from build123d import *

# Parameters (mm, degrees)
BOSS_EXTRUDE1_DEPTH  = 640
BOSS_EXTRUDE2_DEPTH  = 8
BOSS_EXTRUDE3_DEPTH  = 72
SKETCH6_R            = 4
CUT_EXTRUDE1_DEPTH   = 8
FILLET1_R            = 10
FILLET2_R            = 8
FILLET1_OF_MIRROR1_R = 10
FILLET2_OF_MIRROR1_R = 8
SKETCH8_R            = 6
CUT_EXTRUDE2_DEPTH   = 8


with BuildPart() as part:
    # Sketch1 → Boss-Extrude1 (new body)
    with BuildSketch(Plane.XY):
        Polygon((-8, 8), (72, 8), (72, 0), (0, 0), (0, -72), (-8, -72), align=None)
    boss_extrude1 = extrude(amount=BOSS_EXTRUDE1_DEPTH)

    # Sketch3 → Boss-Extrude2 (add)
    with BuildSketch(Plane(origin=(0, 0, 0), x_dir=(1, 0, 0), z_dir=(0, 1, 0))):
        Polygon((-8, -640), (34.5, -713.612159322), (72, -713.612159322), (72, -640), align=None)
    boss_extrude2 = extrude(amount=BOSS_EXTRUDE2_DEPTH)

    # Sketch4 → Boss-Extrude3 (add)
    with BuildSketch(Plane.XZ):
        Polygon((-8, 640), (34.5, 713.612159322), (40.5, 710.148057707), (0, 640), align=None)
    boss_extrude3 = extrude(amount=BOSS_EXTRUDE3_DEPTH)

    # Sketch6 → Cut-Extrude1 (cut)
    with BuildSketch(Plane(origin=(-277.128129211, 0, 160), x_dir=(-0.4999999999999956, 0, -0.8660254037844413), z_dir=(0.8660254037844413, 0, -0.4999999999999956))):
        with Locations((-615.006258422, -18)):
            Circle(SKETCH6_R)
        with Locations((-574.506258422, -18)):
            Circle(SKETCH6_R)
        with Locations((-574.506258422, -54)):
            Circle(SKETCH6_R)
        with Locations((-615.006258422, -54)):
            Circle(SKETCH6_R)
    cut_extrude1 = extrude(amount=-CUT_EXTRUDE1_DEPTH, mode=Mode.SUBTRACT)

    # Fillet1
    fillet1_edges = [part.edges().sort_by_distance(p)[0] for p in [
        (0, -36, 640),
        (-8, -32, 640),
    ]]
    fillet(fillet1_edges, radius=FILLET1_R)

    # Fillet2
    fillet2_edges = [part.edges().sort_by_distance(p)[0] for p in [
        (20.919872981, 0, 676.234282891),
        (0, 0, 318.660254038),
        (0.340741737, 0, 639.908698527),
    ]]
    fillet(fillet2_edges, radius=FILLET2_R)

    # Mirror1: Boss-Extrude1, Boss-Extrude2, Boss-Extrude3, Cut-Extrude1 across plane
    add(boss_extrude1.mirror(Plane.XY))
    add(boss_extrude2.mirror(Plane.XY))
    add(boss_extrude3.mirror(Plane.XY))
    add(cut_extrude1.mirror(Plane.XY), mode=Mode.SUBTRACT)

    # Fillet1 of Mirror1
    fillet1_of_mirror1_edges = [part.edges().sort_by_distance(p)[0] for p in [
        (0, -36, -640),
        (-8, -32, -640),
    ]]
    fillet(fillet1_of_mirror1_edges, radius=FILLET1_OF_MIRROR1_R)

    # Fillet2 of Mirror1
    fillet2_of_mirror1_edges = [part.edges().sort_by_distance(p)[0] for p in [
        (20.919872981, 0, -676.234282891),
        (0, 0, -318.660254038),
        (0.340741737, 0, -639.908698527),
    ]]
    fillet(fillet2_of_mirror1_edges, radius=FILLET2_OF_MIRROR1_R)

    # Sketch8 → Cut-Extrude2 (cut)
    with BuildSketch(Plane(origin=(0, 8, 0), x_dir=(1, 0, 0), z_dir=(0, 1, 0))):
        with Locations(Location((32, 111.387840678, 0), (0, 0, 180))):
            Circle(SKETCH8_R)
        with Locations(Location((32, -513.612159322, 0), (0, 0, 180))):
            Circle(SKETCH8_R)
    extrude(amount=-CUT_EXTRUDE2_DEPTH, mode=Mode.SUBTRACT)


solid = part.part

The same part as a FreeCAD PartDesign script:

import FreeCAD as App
import Part
import Sketcher
Q = App.Units.Quantity


def edges_at(feature, points):
    """Names of the edges that pass closest to the given points."""
    edges = feature.Shape.Edges
    near = lambda p: min(range(len(edges)), key=lambda i: edges[i].distToShape(Part.Vertex(*p))[0])
    return sorted({f"Edge{near(p) + 1}" for p in points})

doc = App.newDocument("Part")
body = doc.addObject("PartDesign::Body", "Body")

# Sketch on XY plane
sketch1 = body.newObject("Sketcher::SketchObject", "Sketch")
sketch1.AttachmentSupport = (doc.getObject("XY_Plane"), [""])
sketch1.MapMode = "FlatFace"
sketch1.addGeometry([
    Part.LineSegment(App.Vector(72, 8, 0), App.Vector(-8, 8, 0)),  # 0
    Part.LineSegment(App.Vector(-8, 8, 0), App.Vector(-8, -72, 0)),  # 1
    Part.LineSegment(App.Vector(-8, -72, 0), App.Vector(0, -72, 0)),  # 2
    Part.LineSegment(App.Vector(0, -72, 0), App.Vector(0, 0, 0)),  # 3
    Part.LineSegment(App.Vector(0, 0, 0), App.Vector(72, 0, 0)),  # 4
    Part.LineSegment(App.Vector(72, 0, 0), App.Vector(72, 8, 0)),  # 5
], False)
sketch1.addConstraint([
    Sketcher.Constraint("Coincident", 0, 2, 1, 1),
    Sketcher.Constraint("Coincident", 1, 2, 2, 1),
    Sketcher.Constraint("Coincident", 2, 2, 3, 1),
    Sketcher.Constraint("Coincident", 3, 2, 4, 1),
    Sketcher.Constraint("Coincident", 4, 2, 5, 1),
    Sketcher.Constraint("Coincident", 5, 2, 0, 1),
    Sketcher.Constraint("Horizontal", 0),
    Sketcher.Constraint("Vertical", 1),
    Sketcher.Constraint("Horizontal", 2),
    Sketcher.Constraint("Vertical", 3),
    Sketcher.Constraint("Horizontal", 4),
    Sketcher.Constraint("Vertical", 5),
    Sketcher.Constraint("Coincident", 3, 2, -1, 1),
    Sketcher.Constraint("Equal", 0, 1),
    Sketcher.Constraint("Equal", 4, 3),
    Sketcher.Constraint("DistanceX", 0, 2, 0, 1, Q("80 mm")),
    Sketcher.Constraint("DistanceX", 2, 1, 2, 2, Q("8 mm")),
])
pad1 = body.newObject("PartDesign::Pad", "Pad")
pad1.Profile = sketch1
pad1.Length = 640

# Sketch on XZ plane
sketch2 = body.newObject("Sketcher::SketchObject", "Sketch001")
sketch2.AttachmentSupport = (doc.getObject("XZ_Plane"), [""])
sketch2.MapMode = "FlatFace"
sketch2.addGeometry([
    Part.LineSegment(App.Vector(-8, 640, 0), App.Vector(34, 714, 0)),
    Part.LineSegment(App.Vector(34, 714, 0), App.Vector(72, 714, 0)),
    Part.LineSegment(App.Vector(72, 714, 0), App.Vector(72, 640, 0)),
    Part.LineSegment(App.Vector(72, 640, 0), App.Vector(-8, 640, 0)),
], False)
sketch2.addConstraint([
    Sketcher.Constraint("Coincident", 0, 2, 1, 1),
    Sketcher.Constraint("Coincident", 1, 2, 2, 1),
    Sketcher.Constraint("Coincident", 2, 2, 3, 1),
    Sketcher.Constraint("Coincident", 3, 2, 0, 1),
    Sketcher.Constraint("Horizontal", 1),
    Sketcher.Constraint("Vertical", 2),
    Sketcher.Constraint("Horizontal", 3),
    Sketcher.Constraint("DistanceX", 3, 2, 3, 1, Q("80 mm")),
    Sketcher.Constraint("Angle", 0, Q("60 deg")),
    Sketcher.Constraint("Distance", 0, Q("85 mm")),
    Sketcher.Constraint("DistanceX", -1, 1, 1, 2, Q("72 mm")),
    Sketcher.Constraint("DistanceY", -1, 1, 2, 2, Q("640 mm")),
])
pad2 = body.newObject("PartDesign::Pad", "Pad001")
pad2.Profile = sketch2
pad2.Length = 8
pad2.Reversed = True

# Sketch on XZ plane
sketch3 = body.newObject("Sketcher::SketchObject", "Sketch002")
sketch3.AttachmentSupport = (doc.getObject("XZ_Plane"), [""])
sketch3.MapMode = "FlatFace"
sketch3.addGeometry([
    Part.LineSegment(App.Vector(34, 714, 0), App.Vector(-8, 640, 0)),
    Part.LineSegment(App.Vector(-8, 640, 0), App.Vector(0, 640, 0)),
    Part.LineSegment(App.Vector(0, 640, 0), App.Vector(40, 710, 0)),
    Part.LineSegment(App.Vector(40, 710, 0), App.Vector(34, 714, 0)),
], False)
sketch3.addConstraint([
    Sketcher.Constraint("Coincident", 0, 2, 1, 1),
    Sketcher.Constraint("Coincident", 1, 2, 2, 1),
    Sketcher.Constraint("Coincident", 2, 2, 3, 1),
    Sketcher.Constraint("Coincident", 3, 2, 0, 1),
    Sketcher.Constraint("Horizontal", 1),
    Sketcher.Constraint("PointOnObject", 1, 2, -2),
    Sketcher.Constraint("Parallel", 0, 2),
    Sketcher.Constraint("Perpendicular", 2, 3),
    Sketcher.Constraint("DistanceX", 1, 1, 1, 2, Q("8 mm")),
    Sketcher.Constraint("Angle", 0, Q("-120 deg")),
    Sketcher.Constraint("Distance", 0, Q("85 mm")),
    Sketcher.Constraint("DistanceY", -1, 1, 0, 2, Q("640 mm")),
])
pad3 = body.newObject("PartDesign::Pad", "Pad002")
pad3.Profile = sketch3
pad3.Length = 72

# Sketch on an angled plane
sketch4 = body.newObject("Sketcher::SketchObject", "Sketch003")
sketch4.Placement = App.Placement(App.Vector(-277.128129, 0, 160), App.Rotation(App.Vector(-0.5, 0, -0.866025404), App.Vector(0, 1, 0), App.Vector(0.866025404, 0, -0.5), "ZXY"))
sketch4.addGeometry([
    Part.Circle(App.Vector(-615, -18, 0), App.Vector(0, 0, 1), 4),
    Part.Circle(App.Vector(-574.5, -18, 0), App.Vector(0, 0, 1), 4),
    Part.Circle(App.Vector(-574.5, -54, 0), App.Vector(0, 0, 1), 4),
    Part.Circle(App.Vector(-615, -54, 0), App.Vector(0, 0, 1), 4),
], False)
sketch4.addConstraint([
    Sketcher.Constraint("Equal", 0, 1),
    Sketcher.Constraint("Equal", 1, 2),
    Sketcher.Constraint("Equal", 2, 3),
    Sketcher.Constraint("Horizontal", 0, 3, 1, 3),
    Sketcher.Constraint("Horizontal", 2, 3, 3, 3),
    Sketcher.Constraint("Vertical", 1, 3, 2, 3),
    Sketcher.Constraint("Vertical", 0, 3, 3, 3),
    Sketcher.Constraint("Diameter", 0, Q("8 mm")),
    Sketcher.Constraint("DistanceY", 0, 3, -1, 1, Q("18 mm")),
    Sketcher.Constraint("DistanceY", 2, 3, -1, 1, Q("54 mm")),
    Sketcher.Constraint("DistanceX", 0, 3, 1, 3, Q("40.5 mm")),
    Sketcher.Constraint("DistanceX", 0, 3, -1, 1, Q("615.006259 mm")),
])
pocket1 = body.newObject("PartDesign::Pocket", "Pocket")
pocket1.Profile = sketch4
pocket1.Length = 8
doc.recompute()

fillet = body.newObject("PartDesign::Fillet", "Fillet")
fillet.Base = (pocket1, edges_at(pocket1, [(0, -36, 640), (-8, -32, 640)]))
fillet.Radius = 10
doc.recompute()

fillet2 = body.newObject("PartDesign::Fillet", "Fillet001")
fillet2.Base = (fillet, edges_at(fillet, [(20.92, 0, 676.234), (0, 0, 318.66), (0.341, 0, 639.909)]))
fillet2.Radius = 8
doc.recompute()

mirrored = body.newObject("PartDesign::Mirrored", "Mirrored")
mirrored.Originals = [pad1, pad2, pad3, pocket1]
mirrored.MirrorPlane = (doc.getObject("XY_Plane"), [""])
body.Tip = mirrored
doc.recompute()

fillet3 = body.newObject("PartDesign::Fillet", "Fillet002")
fillet3.Base = (mirrored, edges_at(mirrored, [(0, -36, -640), (-8, -32, -640)]))
fillet3.Radius = 10
doc.recompute()

fillet4 = body.newObject("PartDesign::Fillet", "Fillet003")
fillet4.Base = (fillet3, edges_at(fillet3, [(20.92, 0, -676.234), (0, 0, -318.66), (0.341, 0, -639.909)]))
fillet4.Radius = 8

# Sketch on XZ plane
sketch5 = body.newObject("Sketcher::SketchObject", "Sketch004")
sketch5.AttachmentSupport = (doc.getObject("XZ_Plane"), [""])
sketch5.MapMode = "FlatFace"
sketch5.AttachmentOffset = App.Placement(App.Vector(0, 0, -8), App.Rotation())
sketch5.addGeometry([
    Part.Circle(App.Vector(32, -111, 0), App.Vector(0, 0, 1), 6),
    Part.Circle(App.Vector(32, 514, 0), App.Vector(0, 0, 1), 6),
], False)
sketch5.addConstraint([
    Sketcher.Constraint("Equal", 0, 1),
    Sketcher.Constraint("Vertical", 0, 3, 1, 3),
    Sketcher.Constraint("Diameter", 0, Q("12 mm")),
    Sketcher.Constraint("DistanceX", -1, 1, 0, 3, Q("32 mm")),
    Sketcher.Constraint("DistanceY", 0, 3, 1, 3, Q("625 mm")),
    Sketcher.Constraint("DistanceY", 0, 3, -1, 1, Q("111.387841 mm")),
])
pocket2 = body.newObject("PartDesign::Pocket", "Pocket001")
pocket2.Profile = sketch5
pocket2.Length = 8
pocket2.Reversed = True

doc.recompute()
